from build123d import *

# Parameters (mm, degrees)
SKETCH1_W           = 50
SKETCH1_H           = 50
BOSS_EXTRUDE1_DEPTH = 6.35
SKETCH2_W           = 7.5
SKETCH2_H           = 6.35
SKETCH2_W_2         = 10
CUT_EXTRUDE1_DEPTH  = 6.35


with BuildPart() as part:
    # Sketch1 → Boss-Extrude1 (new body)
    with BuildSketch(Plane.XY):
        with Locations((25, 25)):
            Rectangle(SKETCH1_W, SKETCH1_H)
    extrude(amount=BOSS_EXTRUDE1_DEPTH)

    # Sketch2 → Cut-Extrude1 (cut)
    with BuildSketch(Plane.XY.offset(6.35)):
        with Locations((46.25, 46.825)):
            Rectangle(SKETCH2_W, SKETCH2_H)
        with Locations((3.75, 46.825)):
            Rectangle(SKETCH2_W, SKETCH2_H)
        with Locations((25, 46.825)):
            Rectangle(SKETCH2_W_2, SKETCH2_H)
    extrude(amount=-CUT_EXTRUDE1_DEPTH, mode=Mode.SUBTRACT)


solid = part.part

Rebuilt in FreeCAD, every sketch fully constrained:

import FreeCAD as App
import Part
import Sketcher

V = App.Vector

doc = App.newDocument("Part")
params = doc.addObject("Spreadsheet::Sheet", "Params")
for row, (alias, value) in enumerate([
    ("sketch1_width", "50 mm"),
    ("pad1_length", "6.35 mm"),
    ("sketch2_width", "10 mm"),
    ("sketch2_width2", "7.5 mm"),
    ("sketch2_height", "6.35 mm"),
    ("pocket1_length", "6.35 mm"),
], start=1):
    params.set(f"A{row}", alias)
    params.set(f"B{row}", "=" + value)
    params.setAlias(f"B{row}", alias)

body = doc.addObject("PartDesign::Body", "Body")

sketch1 = body.newObject("Sketcher::SketchObject", "Sketch")
sketch1.AttachmentSupport = (doc.getObject("XY_Plane"), [""])
sketch1.MapMode = "FlatFace"
sketch1.addGeometry([
    Part.LineSegment(V(0, 50, 0), V(0, 0, 0)),
    Part.LineSegment(V(0, 0, 0), V(50, 0, 0)),
    Part.LineSegment(V(50, 0, 0), V(50, 50, 0)),
    Part.LineSegment(V(50, 50, 0), V(0, 50, 0)),
], False)
sketch1.addConstraint([
    Sketcher.Constraint("Coincident", 0, 2, 1, 1),
    Sketcher.Constraint("Coincident", 1, 2, 2, 1),
    Sketcher.Constraint("Coincident", 2, 2, 3, 1),
    Sketcher.Constraint("Coincident", 3, 2, 0, 1),
    Sketcher.Constraint("Vertical", 0),
    Sketcher.Constraint("Horizontal", 1),
    Sketcher.Constraint("Vertical", 2),
    Sketcher.Constraint("Horizontal", 3),
    Sketcher.Constraint("Coincident", 0, 2, -1, 1),
    Sketcher.Constraint("Equal", 3, 0),
    Sketcher.Constraint("DistanceX", 1, 1, 1, 2, 50.0),
])
sketch1.setExpression("Constraints[10]", "Params.sketch1_width")
pad1 = body.newObject("PartDesign::Pad", "Pad")
pad1.Profile = sketch1
pad1.setExpression("Length", "Params.pad1_length")

sketch2 = body.newObject("Sketcher::SketchObject", "Sketch001")
sketch2.AttachmentSupport = (doc.getObject("XY_Plane"), [""])
sketch2.MapMode = "FlatFace"
sketch2.AttachmentOffset = App.Placement(V(0, 0, 6.35), App.Rotation())
sketch2.addGeometry([
    Part.LineSegment(V(42.5, 50, 0), V(42.5, 43.65, 0)),
    Part.LineSegment(V(42.5, 43.65, 0), V(50, 43.65, 0)),
    Part.LineSegment(V(50, 43.65, 0), V(50, 50, 0)),
    Part.LineSegment(V(50, 50, 0), V(42.5, 50, 0)),
    Part.LineSegment(V(0, 50, 0), V(0, 43.65, 0)),
    Part.LineSegment(V(0, 43.65, 0), V(7.5, 43.65, 0)),
    Part.LineSegment(V(7.5, 43.65, 0), V(7.5, 50, 0)),
    Part.LineSegment(V(7.5, 50, 0), V(0, 50, 0)),
    Part.LineSegment(V(20, 50, 0), V(20, 43.65, 0)),
    Part.LineSegment(V(20, 43.65, 0), V(30, 43.65, 0)),
    Part.LineSegment(V(30, 43.65, 0), V(30, 50, 0)),
    Part.LineSegment(V(30, 50, 0), V(20, 50, 0)),
], False)
sketch2.addConstraint([
    Sketcher.Constraint("Coincident", 0, 2, 1, 1),
    Sketcher.Constraint("Coincident", 1, 2, 2, 1),
    Sketcher.Constraint("Coincident", 2, 2, 3, 1),
    Sketcher.Constraint("Coincident", 3, 2, 0, 1),
    Sketcher.Constraint("Coincident", 4, 2, 5, 1),
    Sketcher.Constraint("Coincident", 5, 2, 6, 1),
    Sketcher.Constraint("Coincident", 6, 2, 7, 1),
    Sketcher.Constraint("Coincident", 7, 2, 4, 1),
    Sketcher.Constraint("Coincident", 8, 2, 9, 1),
    Sketcher.Constraint("Coincident", 9, 2, 10, 1),
    Sketcher.Constraint("Coincident", 10, 2, 11, 1),
    Sketcher.Constraint("Coincident", 11, 2, 8, 1),
    Sketcher.Constraint("Vertical", 0),
    Sketcher.Constraint("Horizontal", 1),
    Sketcher.Constraint("Vertical", 2),
    Sketcher.Constraint("Horizontal", 3),
    Sketcher.Constraint("Vertical", 4),
    Sketcher.Constraint("Horizontal", 5),
    Sketcher.Constraint("Vertical", 6),
    Sketcher.Constraint("Horizontal", 7),
    Sketcher.Constraint("Vertical", 8),
    Sketcher.Constraint("Horizontal", 9),
    Sketcher.Constraint("Vertical", 10),
    Sketcher.Constraint("Horizontal", 11),
    Sketcher.Constraint("PointOnObject", 4, 2, -2),
    Sketcher.Constraint("Horizontal", 1, 2, 4, 2),
    Sketcher.Constraint("Horizontal", 3, 2, 6, 2),
    Sketcher.Constraint("Horizontal", 5, 2, 8, 2),
    Sketcher.Constraint("Horizontal", 7, 2, 10, 2),
    Sketcher.Constraint("Equal", 3, 5),
    Sketcher.Constraint("DistanceX", 9, 1, 9, 2, 10.0),
    Sketcher.Constraint("DistanceX", 1, 1, 1, 2, 7.5),
    Sketcher.Constraint("DistanceX", -1, 1, 1, 2, 50.0),
    Sketcher.Constraint("DistanceY", -1, 1, 2, 2, 50.0),
    Sketcher.Constraint("DistanceX", -1, 1, 8, 2, 20.0),
    Sketcher.Constraint("DistanceY", 0, 2, 0, 1, 6.35),
])
sketch2.setExpression("Constraints[30]", "Params.sketch2_width")
sketch2.setExpression("Constraints[31]", "Params.sketch2_width2")
sketch2.setExpression("Constraints[35]", "Params.sketch2_height")
pocket1 = body.newObject("PartDesign::Pocket", "Pocket")
pocket1.Profile = sketch2
pocket1.setExpression("Length", "Params.pocket1_length")

doc.recompute()
